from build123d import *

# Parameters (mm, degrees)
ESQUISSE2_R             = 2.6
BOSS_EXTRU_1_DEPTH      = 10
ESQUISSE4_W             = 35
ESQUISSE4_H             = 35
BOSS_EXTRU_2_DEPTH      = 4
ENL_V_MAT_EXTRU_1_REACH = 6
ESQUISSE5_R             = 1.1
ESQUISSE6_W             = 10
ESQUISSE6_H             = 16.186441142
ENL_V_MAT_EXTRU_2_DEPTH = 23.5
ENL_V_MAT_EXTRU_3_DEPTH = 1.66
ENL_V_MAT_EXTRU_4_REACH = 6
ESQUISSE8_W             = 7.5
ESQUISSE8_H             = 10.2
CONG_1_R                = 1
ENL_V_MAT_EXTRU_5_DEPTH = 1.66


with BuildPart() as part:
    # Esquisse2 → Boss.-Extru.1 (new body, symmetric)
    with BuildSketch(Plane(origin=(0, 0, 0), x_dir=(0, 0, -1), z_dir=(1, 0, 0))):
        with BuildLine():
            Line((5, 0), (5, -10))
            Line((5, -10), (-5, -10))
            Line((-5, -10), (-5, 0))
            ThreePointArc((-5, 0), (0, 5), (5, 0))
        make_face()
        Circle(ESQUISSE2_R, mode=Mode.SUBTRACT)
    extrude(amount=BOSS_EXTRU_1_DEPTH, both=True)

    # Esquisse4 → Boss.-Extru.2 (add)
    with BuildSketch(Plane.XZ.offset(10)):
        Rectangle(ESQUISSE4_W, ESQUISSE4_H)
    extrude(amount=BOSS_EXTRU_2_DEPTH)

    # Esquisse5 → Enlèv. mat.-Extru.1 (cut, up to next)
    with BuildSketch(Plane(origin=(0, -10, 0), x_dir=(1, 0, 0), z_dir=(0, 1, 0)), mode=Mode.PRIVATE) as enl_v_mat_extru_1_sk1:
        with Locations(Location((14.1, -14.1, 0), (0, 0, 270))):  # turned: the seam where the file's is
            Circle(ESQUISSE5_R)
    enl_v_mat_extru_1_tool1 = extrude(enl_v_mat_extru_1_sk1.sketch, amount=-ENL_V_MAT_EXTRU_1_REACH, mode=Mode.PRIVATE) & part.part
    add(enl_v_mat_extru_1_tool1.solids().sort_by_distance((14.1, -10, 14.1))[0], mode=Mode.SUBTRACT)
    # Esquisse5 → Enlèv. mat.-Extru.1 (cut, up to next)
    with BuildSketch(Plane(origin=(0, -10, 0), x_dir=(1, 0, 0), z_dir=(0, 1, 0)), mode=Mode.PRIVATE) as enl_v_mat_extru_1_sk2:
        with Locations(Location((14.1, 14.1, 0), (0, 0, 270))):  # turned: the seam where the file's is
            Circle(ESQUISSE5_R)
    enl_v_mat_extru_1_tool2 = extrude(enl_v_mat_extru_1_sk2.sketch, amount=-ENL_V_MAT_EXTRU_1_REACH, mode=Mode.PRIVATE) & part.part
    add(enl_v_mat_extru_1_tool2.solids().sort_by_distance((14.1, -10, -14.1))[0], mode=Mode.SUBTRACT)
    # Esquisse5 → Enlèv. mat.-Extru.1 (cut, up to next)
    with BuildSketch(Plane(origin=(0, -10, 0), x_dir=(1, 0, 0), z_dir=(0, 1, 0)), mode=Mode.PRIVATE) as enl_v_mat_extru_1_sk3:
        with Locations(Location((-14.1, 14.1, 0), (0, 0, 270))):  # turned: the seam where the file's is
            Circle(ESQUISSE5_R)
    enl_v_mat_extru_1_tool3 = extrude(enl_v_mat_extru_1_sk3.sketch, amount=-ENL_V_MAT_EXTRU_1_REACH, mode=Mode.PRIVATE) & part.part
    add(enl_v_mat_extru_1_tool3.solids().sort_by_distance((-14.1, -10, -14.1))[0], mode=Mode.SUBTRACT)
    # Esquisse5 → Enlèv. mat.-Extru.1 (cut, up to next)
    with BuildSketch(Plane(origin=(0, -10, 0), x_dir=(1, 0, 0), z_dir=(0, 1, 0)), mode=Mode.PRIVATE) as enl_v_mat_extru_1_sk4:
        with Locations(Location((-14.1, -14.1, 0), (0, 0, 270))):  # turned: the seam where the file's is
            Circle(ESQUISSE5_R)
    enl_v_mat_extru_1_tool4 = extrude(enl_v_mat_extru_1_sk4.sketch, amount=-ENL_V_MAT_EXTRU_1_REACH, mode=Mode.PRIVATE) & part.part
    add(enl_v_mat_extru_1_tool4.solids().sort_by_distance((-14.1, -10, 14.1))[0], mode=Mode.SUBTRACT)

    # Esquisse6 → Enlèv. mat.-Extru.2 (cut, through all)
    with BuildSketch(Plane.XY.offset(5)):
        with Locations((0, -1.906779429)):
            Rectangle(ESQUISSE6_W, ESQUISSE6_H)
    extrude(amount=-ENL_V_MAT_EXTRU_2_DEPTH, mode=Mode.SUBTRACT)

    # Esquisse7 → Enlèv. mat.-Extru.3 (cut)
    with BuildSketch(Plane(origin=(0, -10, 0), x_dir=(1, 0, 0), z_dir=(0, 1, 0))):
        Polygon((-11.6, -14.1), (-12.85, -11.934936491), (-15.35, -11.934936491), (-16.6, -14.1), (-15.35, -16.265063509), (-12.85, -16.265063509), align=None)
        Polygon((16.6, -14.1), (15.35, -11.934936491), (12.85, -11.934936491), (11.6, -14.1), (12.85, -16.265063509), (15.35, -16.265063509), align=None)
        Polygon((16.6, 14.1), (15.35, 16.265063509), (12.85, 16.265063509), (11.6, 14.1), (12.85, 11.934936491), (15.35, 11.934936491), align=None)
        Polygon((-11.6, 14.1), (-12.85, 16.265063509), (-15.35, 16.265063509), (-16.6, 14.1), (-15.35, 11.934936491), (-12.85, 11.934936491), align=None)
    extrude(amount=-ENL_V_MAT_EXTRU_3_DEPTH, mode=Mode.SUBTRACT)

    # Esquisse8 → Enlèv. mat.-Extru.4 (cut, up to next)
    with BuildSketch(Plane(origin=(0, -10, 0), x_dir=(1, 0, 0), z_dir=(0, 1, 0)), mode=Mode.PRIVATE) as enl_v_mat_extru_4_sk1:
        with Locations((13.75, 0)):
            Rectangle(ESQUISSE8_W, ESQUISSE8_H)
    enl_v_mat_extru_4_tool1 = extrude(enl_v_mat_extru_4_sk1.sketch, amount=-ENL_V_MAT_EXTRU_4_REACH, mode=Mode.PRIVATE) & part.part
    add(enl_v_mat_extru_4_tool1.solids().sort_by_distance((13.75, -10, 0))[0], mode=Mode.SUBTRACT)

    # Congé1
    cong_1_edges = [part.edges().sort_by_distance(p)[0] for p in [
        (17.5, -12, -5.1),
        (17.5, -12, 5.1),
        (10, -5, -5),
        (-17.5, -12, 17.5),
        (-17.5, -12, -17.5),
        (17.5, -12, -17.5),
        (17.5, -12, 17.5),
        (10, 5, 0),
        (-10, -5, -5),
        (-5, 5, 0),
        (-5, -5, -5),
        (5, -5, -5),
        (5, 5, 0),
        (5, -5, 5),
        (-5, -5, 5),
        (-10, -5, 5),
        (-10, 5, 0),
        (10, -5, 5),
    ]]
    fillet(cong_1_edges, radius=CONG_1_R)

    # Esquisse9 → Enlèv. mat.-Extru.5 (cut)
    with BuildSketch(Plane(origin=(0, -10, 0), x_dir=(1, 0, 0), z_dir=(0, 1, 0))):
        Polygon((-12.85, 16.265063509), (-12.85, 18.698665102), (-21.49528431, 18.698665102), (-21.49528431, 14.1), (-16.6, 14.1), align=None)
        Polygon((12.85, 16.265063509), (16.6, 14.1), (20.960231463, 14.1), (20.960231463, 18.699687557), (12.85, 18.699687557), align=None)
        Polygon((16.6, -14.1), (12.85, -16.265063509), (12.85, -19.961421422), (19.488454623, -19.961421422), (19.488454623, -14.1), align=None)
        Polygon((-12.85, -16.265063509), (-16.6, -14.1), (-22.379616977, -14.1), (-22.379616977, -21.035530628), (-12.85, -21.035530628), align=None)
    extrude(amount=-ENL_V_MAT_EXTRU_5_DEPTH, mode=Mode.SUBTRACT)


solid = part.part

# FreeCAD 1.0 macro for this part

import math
import FreeCAD as App
import Part
import Sketcher
from FreeCAD import Vector
Q = App.Units.Quantity


def edges_at(feature, points):
    """Names of the edges that pass closest to the given points."""
    edges = feature.Shape.Edges
    near = lambda p: min(range(len(edges)), key=lambda i: edges[i].distToShape(Part.Vertex(*p))[0])
    return sorted({f"Edge{near(p) + 1}" for p in points})

doc = App.newDocument("Part")
body = doc.addObject("PartDesign::Body", "Body")

# Sketch on YZ plane
sketch1 = doc.addObject("Sketcher::SketchObject", "Sketch")
body.addObject(sketch1)
sketch1.AttachmentSupport = (doc.YZ_Plane, [""])
sketch1.MapMode = "FlatFace"
sketch1.addGeometry([
    Part.LineSegment(Vector(-10, -5, 0), Vector(0, -5, 0)),  # 0
    Part.ArcOfCircle(Part.Circle(Vector(0, 0, 0), Vector(0, 0, 1), 5), math.radians(-90), math.radians(90)),  # 1
    Part.LineSegment(Vector(0, 5, 0), Vector(-10, 5, 0)),  # 2
    Part.LineSegment(Vector(-10, 5, 0), Vector(-10, -5, 0)),  # 3
    Part.Circle(Vector(0, 0, 0), Vector(0, 0, 1), 2.6),  # 4
], False)
sketch1.addConstraint([
    Sketcher.Constraint("Tangent", 0, 2, 1, 1),
    Sketcher.Constraint("Tangent", 1, 2, 2, 1),
    Sketcher.Constraint("Coincident", 2, 2, 3, 1),
    Sketcher.Constraint("Coincident", 3, 2, 0, 1),
    Sketcher.Constraint("Horizontal", 0),
    Sketcher.Constraint("Horizontal", 2),
    Sketcher.Constraint("Vertical", 3),
    Sketcher.Constraint("Coincident", 1, 3, -1, 1),
    Sketcher.Constraint("Coincident", 4, 3, -1, 1),
    Sketcher.Constraint("Equal", 2, 3),
    Sketcher.Constraint("Radius", 1, Q("5 mm")),
    Sketcher.Constraint("Diameter", 4, Q("5.2 mm")),
])
pad1 = doc.addObject("PartDesign::Pad", "Pad")
body.addObject(pad1)
pad1.Profile = sketch1
pad1.Length = 20
pad1.Midplane = True

# Sketch on XZ plane
sketch2 = doc.addObject("Sketcher::SketchObject", "Sketch001")
body.addObject(sketch2)
sketch2.AttachmentSupport = (doc.XZ_Plane, [""])
sketch2.MapMode = "FlatFace"
sketch2.AttachmentOffset = App.Placement(Vector(0, 0, 10), App.Rotation())
sketch2.addGeometry([
    Part.LineSegment(Vector(-17.5, 17.5, 0), Vector(-17.5, -17.5, 0)),
    Part.LineSegment(Vector(-17.5, -17.5, 0), Vector(17.5, -17.5, 0)),
    Part.LineSegment(Vector(17.5, -17.5, 0), Vector(17.5, 17.5, 0)),
    Part.LineSegment(Vector(17.5, 17.5, 0), Vector(-17.5, 17.5, 0)),
], False)
sketch2.addConstraint([
    Sketcher.Constraint("Coincident", 0, 2, 1, 1),
    Sketcher.Constraint("Coincident", 1, 2, 2, 1),
    Sketcher.Constraint("Coincident", 2, 2, 3, 1),
    Sketcher.Constraint("Coincident", 3, 2, 0, 1),
    Sketcher.Constraint("Vertical", 0),
    Sketcher.Constraint("Horizontal", 1),
    Sketcher.Constraint("Vertical", 2),
    Sketcher.Constraint("Horizontal", 3),
    Sketcher.Constraint("Symmetric", 0, 2, 2, 2, -1, 1),
    Sketcher.Constraint("Equal", 3, 0),
    Sketcher.Constraint("DistanceX", 1, 1, 1, 2, Q("35 mm")),
])
pad2 = doc.addObject("PartDesign::Pad", "Pad001")
body.addObject(pad2)
pad2.Profile = sketch2
pad2.Length = 4

# Sketch on XZ plane
sketch3 = doc.addObject("Sketcher::SketchObject", "Sketch002")
body.addObject(sketch3)
sketch3.AttachmentSupport = (doc.XZ_Plane, [""])
sketch3.MapMode = "FlatFace"
sketch3.AttachmentOffset = App.Placement(Vector(0, 0, 10), App.Rotation())
sketch3.addGeometry(Part.Circle(Vector(14.1, 14.1, 0), Vector(0, 0, 1), 1.1), False)
sketch3.addConstraint([
    Sketcher.Constraint("Diameter", 0, Q("2.2 mm")),
    Sketcher.Constraint("DistanceX", -1, 1, 0, 3, Q("14.1 mm")),
    Sketcher.Constraint("DistanceY", -1, 1, 0, 3, Q("14.1 mm")),
])
pocket1 = doc.addObject("PartDesign::Pocket", "Pocket")
body.addObject(pocket1)
pocket1.Profile = sketch3
pocket1.Type = "UpToFirst"
pocket1.Reversed = True

# Sketch on XZ plane
sketch4 = doc.addObject("Sketcher::SketchObject", "Sketch003")
body.addObject(sketch4)
sketch4.AttachmentSupport = (doc.XZ_Plane, [""])
sketch4.MapMode = "FlatFace"
sketch4.AttachmentOffset = App.Placement(Vector(0, 0, 10), App.Rotation())
sketch4.addGeometry(Part.Circle(Vector(14.1, -14.1, 0), Vector(0, 0, 1), 1.1), False)
sketch4.addConstraint([
    Sketcher.Constraint("Diameter", 0, Q("2.2 mm")),
    Sketcher.Constraint("DistanceX", -1, 1, 0, 3, Q("14.1 mm")),
    Sketcher.Constraint("DistanceY", 0, 3, -1, 1, Q("14.1 mm")),
])
pocket2 = doc.addObject("PartDesign::Pocket", "Pocket001")
body.addObject(pocket2)
pocket2.Profile = sketch4
pocket2.Type = "UpToFirst"
pocket2.Reversed = True

# Sketch on XZ plane
sketch5 = doc.addObject("Sketcher::SketchObject", "Sketch004")
body.addObject(sketch5)
sketch5.AttachmentSupport = (doc.XZ_Plane, [""])
sketch5.MapMode = "FlatFace"
sketch5.AttachmentOffset = App.Placement(Vector(0, 0, 10), App.Rotation())
sketch5.addGeometry(Part.Circle(Vector(-14.1, -14.1, 0), Vector(0, 0, 1), 1.1), False)
sketch5.addConstraint([
    Sketcher.Constraint("Diameter", 0, Q("2.2 mm")),
    Sketcher.Constraint("DistanceX", 0, 3, -1, 1, Q("14.1 mm")),
    Sketcher.Constraint("DistanceY", 0, 3, -1, 1, Q("14.1 mm")),
])
pocket3 = doc.addObject("PartDesign::Pocket", "Pocket002")
body.addObject(pocket3)
pocket3.Profile = sketch5
pocket3.Type = "UpToFirst"
pocket3.Reversed = True

# Sketch on XZ plane
sketch6 = doc.addObject("Sketcher::SketchObject", "Sketch005")
body.addObject(sketch6)
sketch6.AttachmentSupport = (doc.XZ_Plane, [""])
sketch6.MapMode = "FlatFace"
sketch6.AttachmentOffset = App.Placement(Vector(0, 0, 10), App.Rotation())
sketch6.addGeometry(Part.Circle(Vector(-14.1, 14.1, 0), Vector(0, 0, 1), 1.1), False)
sketch6.addConstraint([
    Sketcher.Constraint("Diameter", 0, Q("2.2 mm")),
    Sketcher.Constraint("DistanceX", 0, 3, -1, 1, Q("14.1 mm")),
    Sketcher.Constraint("DistanceY", -1, 1, 0, 3, Q("14.1 mm")),
])
pocket4 = doc.addObject("PartDesign::Pocket", "Pocket003")
body.addObject(pocket4)
pocket4.Profile = sketch6
pocket4.Type = "UpToFirst"
pocket4.Reversed = True

# Sketch on XY plane
sketch7 = doc.addObject("Sketcher::SketchObject", "Sketch006")
body.addObject(sketch7)
sketch7.AttachmentSupport = (doc.XY_Plane, [""])
sketch7.MapMode = "FlatFace"
sketch7.AttachmentOffset = App.Placement(Vector(0, 0, 5), App.Rotation())
sketch7.addGeometry([
    Part.LineSegment(Vector(-5, 6.186441, 0), Vector(-5, -10, 0)),
    Part.LineSegment(Vector(-5, -10, 0), Vector(5, -10, 0)),
    Part.LineSegment(Vector(5, -10, 0), Vector(5, 6.186441, 0)),
    Part.LineSegment(Vector(5, 6.186441, 0), Vector(-5, 6.186441, 0)),
], False)
sketch7.addConstraint([
    Sketcher.Constraint("Coincident", 0, 2, 1, 1),
    Sketcher.Constraint("Coincident", 1, 2, 2, 1),
    Sketcher.Constraint("Coincident", 2, 2, 3, 1),
    Sketcher.Constraint("Coincident", 3, 2, 0, 1),
    Sketcher.Constraint("Vertical", 0),
    Sketcher.Constraint("Horizontal", 1),
    Sketcher.Constraint("Vertical", 2),
    Sketcher.Constraint("Horizontal", 3),
    Sketcher.Constraint("DistanceX", 1, 1, 1, 2, Q("10 mm")),
    Sketcher.Constraint("DistanceX", 0, 2, -1, 1, Q("5 mm")),
    Sketcher.Constraint("DistanceY", 0, 2, -1, 1, Q("10 mm")),
    Sketcher.Constraint("DistanceY", 0, 2, 0, 1, Q("16.186441 mm")),
])
pocket5 = doc.addObject("PartDesign::Pocket", "Pocket004")
body.addObject(pocket5)
pocket5.Profile = sketch7
pocket5.Type = "ThroughAll"

# Sketch on XZ plane
sketch8 = doc.addObject("Sketcher::SketchObject", "Sketch007")
body.addObject(sketch8)
sketch8.AttachmentSupport = (doc.XZ_Plane, [""])
sketch8.MapMode = "FlatFace"
sketch8.AttachmentOffset = App.Placement(Vector(0, 0, 10), App.Rotation())
sketch8.addGeometry([
    Part.LineSegment(Vector(-11.6, 14.1, 0), Vector(-12.85, 11.934936, 0)),  # 0
    Part.LineSegment(Vector(-12.85, 11.934936, 0), Vector(-15.35, 11.934936, 0)),  # 1
    Part.LineSegment(Vector(-15.35, 11.934936, 0), Vector(-16.6, 14.1, 0)),  # 2
    Part.LineSegment(Vector(-16.6, 14.1, 0), Vector(-15.35, 16.265064, 0)),  # 3
    Part.LineSegment(Vector(-15.35, 16.265064, 0), Vector(-12.85, 16.265064, 0)),  # 4
    Part.LineSegment(Vector(-12.85, 16.265064, 0), Vector(-11.6, 14.1, 0)),  # 5
    Part.LineSegment(Vector(16.6, 14.1, 0), Vector(15.35, 11.934936, 0)),  # 6
    Part.LineSegment(Vector(15.35, 11.934936, 0), Vector(12.85, 11.934936, 0)),  # 7
    Part.LineSegment(Vector(12.85, 11.934936, 0), Vector(11.6, 14.1, 0)),  # 8
    Part.LineSegment(Vector(11.6, 14.1, 0), Vector(12.85, 16.265064, 0)),  # 9
    Part.LineSegment(Vector(12.85, 16.265064, 0), Vector(15.35, 16.265064, 0)),  # 10
    Part.LineSegment(Vector(15.35, 16.265064, 0), Vector(16.6, 14.1, 0)),  # 11
    Part.LineSegment(Vector(16.6, -14.1, 0), Vector(15.35, -16.265064, 0)),  # 12
    Part.LineSegment(Vector(15.35, -16.265064, 0), Vector(12.85, -16.265064, 0)),  # 13
    Part.LineSegment(Vector(12.85, -16.265064, 0), Vector(11.6, -14.1, 0)),  # 14
    Part.LineSegment(Vector(11.6, -14.1, 0), Vector(12.85, -11.934936, 0)),  # 15
    Part.LineSegment(Vector(12.85, -11.934936, 0), Vector(15.35, -11.934936, 0)),  # 16
    Part.LineSegment(Vector(15.35, -11.934936, 0), Vector(16.6, -14.1, 0)),  # 17
    Part.LineSegment(Vector(-11.6, -14.1, 0), Vector(-12.85, -16.265064, 0)),  # 18
    Part.LineSegment(Vector(-12.85, -16.265064, 0), Vector(-15.35, -16.265064, 0)),  # 19
    Part.LineSegment(Vector(-15.35, -16.265064, 0), Vector(-16.6, -14.1, 0)),  # 20
    Part.LineSegment(Vector(-16.6, -14.1, 0), Vector(-15.35, -11.934936, 0)),  # 21
    Part.LineSegment(Vector(-15.35, -11.934936, 0), Vector(-12.85, -11.934936, 0)),  # 22
    Part.LineSegment(Vector(-12.85, -11.934936, 0), Vector(-11.6, -14.1, 0)),  # 23
], False)
sketch8.addConstraint([
    Sketcher.Constraint("Coincident", 0, 2, 1, 1),
    Sketcher.Constraint("Coincident", 1, 2, 2, 1),
    Sketcher.Constraint("Coincident", 2, 2, 3, 1),
    Sketcher.Constraint("Coincident", 3, 2, 4, 1),
    Sketcher.Constraint("Coincident", 4, 2, 5, 1),
    Sketcher.Constraint("Coincident", 5, 2, 0, 1),
    Sketcher.Constraint("Coincident", 6, 2, 7, 1),
    Sketcher.Constraint("Coincident", 7, 2, 8, 1),
    Sketcher.Constraint("Coincident", 8, 2, 9, 1),
    Sketcher.Constraint("Coincident", 9, 2, 10, 1),
    Sketcher.Constraint("Coincident", 10, 2, 11, 1),
    Sketcher.Constraint("Coincident", 11, 2, 6, 1),
    Sketcher.Constraint("Coincident", 12, 2, 13, 1),
    Sketcher.Constraint("Coincident", 13, 2, 14, 1),
    Sketcher.Constraint("Coincident", 14, 2, 15, 1),
    Sketcher.Constraint("Coincident", 15, 2, 16, 1),
    Sketcher.Constraint("Coincident", 16, 2, 17, 1),
    Sketcher.Constraint("Coincident", 17, 2, 12, 1),
    Sketcher.Constraint("Coincident", 18, 2, 19, 1),
    Sketcher.Constraint("Coincident", 19, 2, 20, 1),
    Sketcher.Constraint("Coincident", 20, 2, 21, 1),
    Sketcher.Constraint("Coincident", 21, 2, 22, 1),
    Sketcher.Constraint("Coincident", 22, 2, 23, 1),
    Sketcher.Constraint("Coincident", 23, 2, 18, 1),
    Sketcher.Constraint("Horizontal", 1),
    Sketcher.Constraint("Horizontal", 4),
    Sketcher.Constraint("Horizontal", 7),
    Sketcher.Constraint("Horizontal", 10),
    Sketcher.Constraint("Horizontal", 13),
    Sketcher.Constraint("Horizontal", 16),
    Sketcher.Constraint("Horizontal", 19),
    Sketcher.Constraint("Horizontal", 22),
    Sketcher.Constraint("Symmetric", 3, 2, 12, 2, -1, 1),
    Sketcher.Constraint("Symmetric", 5, 2, 14, 2, -1, 1),
    Sketcher.Constraint("Symmetric", 0, 2, 15, 2, -1, 1),
    Sketcher.Constraint("Symmetric", 2, 2, 17, 2, -1, 1),
    Sketcher.Constraint("Symmetric", 9, 2, 18, 2, -1, 1),
    Sketcher.Constraint("Symmetric", 11, 2, 20, 2, -1, 1),
    Sketcher.Constraint("Symmetric", 6, 2, 21, 2, -1, 1),
    Sketcher.Constraint("Symmetric", 8, 2, 23, 2, -1, 1),
    Sketcher.Constraint("Symmetric", 1, 2, 6, 2, -2),
    Sketcher.Constraint("Symmetric", 5, 2, 8, 2, -2),
    Sketcher.Constraint("Symmetric", 4, 2, 9, 2, -2),
    Sketcher.Constraint("Symmetric", 2, 2, 11, 2, -2),
    Sketcher.Constraint("Parallel", 0, 3),
    Sketcher.Constraint("Parallel", 2, 5),
    Sketcher.Constraint("Parallel", 3, 6),
    Sketcher.Constraint("Parallel", 5, 8),
    Sketcher.Constraint("Parallel", 8, 11),
    Sketcher.Constraint("Parallel", 11, 14),
    Sketcher.Constraint("Parallel", 14, 17),
    Sketcher.Constraint("Parallel", 17, 20),
    Sketcher.Constraint("Parallel", 20, 23),
    Sketcher.Constraint("Horizontal", 2, 2, 5, 2),
    Sketcher.Constraint("Vertical", 1, 2, 3, 2),
    Sketcher.Constraint("Angle", 0, Q("-120 deg")),
    Sketcher.Constraint("DistanceX", 1, 2, 1, 1, Q("2.5 mm")),
    Sketcher.Constraint("DistanceX", 2, 2, 5, 2, Q("5 mm")),
    Sketcher.Constraint("DistanceX", 2, 2, -1, 1, Q("16.6 mm")),
    Sketcher.Constraint("DistanceY", -1, 1, 2, 2, Q("14.1 mm")),
])
pocket6 = doc.addObject("PartDesign::Pocket", "Pocket005")
body.addObject(pocket6)
pocket6.Profile = sketch8
pocket6.Length = 1.66
pocket6.Reversed = True

# Sketch on XZ plane
sketch9 = doc.addObject("Sketcher::SketchObject", "Sketch008")
body.addObject(sketch9)
sketch9.AttachmentSupport = (doc.XZ_Plane, [""])
sketch9.MapMode = "FlatFace"
sketch9.AttachmentOffset = App.Placement(Vector(0, 0, 10), App.Rotation())
sketch9.addGeometry([
    Part.LineSegment(Vector(10, -5.1, 0), Vector(10, 5.1, 0)),
    Part.LineSegment(Vector(10, 5.1, 0), Vector(17.5, 5.1, 0)),
    Part.LineSegment(Vector(17.5, 5.1, 0), Vector(17.5, -5.1, 0)),
    Part.LineSegment(Vector(17.5, -5.1, 0), Vector(10, -5.1, 0)),
], False)
sketch9.addConstraint([
    Sketcher.Constraint("Coincident", 0, 2, 1, 1),
    Sketcher.Constraint("Coincident", 1, 2, 2, 1),
    Sketcher.Constraint("Coincident", 2, 2, 3, 1),
    Sketcher.Constraint("Coincident", 3, 2, 0, 1),
    Sketcher.Constraint("Vertical", 0),
    Sketcher.Constraint("Horizontal", 1),
    Sketcher.Constraint("Vertical", 2),
    Sketcher.Constraint("Horizontal", 3),
    Sketcher.Constraint("DistanceX", 1, 1, 1, 2, Q("7.5 mm")),
    Sketcher.Constraint("DistanceY", 0, 1, 0, 2, Q("10.2 mm")),
    Sketcher.Constraint("DistanceX", -1, 1, 0, 2, Q("10 mm")),
    Sketcher.Constraint("DistanceY", -1, 1, 0, 2, Q("5.1 mm")),
])
pocket7 = doc.addObject("PartDesign::Pocket", "Pocket006")
body.addObject(pocket7)
pocket7.Profile = sketch9
pocket7.Type = "UpToFirst"
pocket7.Reversed = True
doc.recompute()

fillet = doc.addObject("PartDesign::Fillet", "Fillet")
body.addObject(fillet)
fillet.Base = (pocket7, edges_at(pocket7, [
    (17.5, -12, -5.1),
    (17.5, -12, 5.1),
    (10, -5, -5),
    (-17.5, -12, 17.5),
    (-17.5, -12, -17.5),
    (17.5, -12, -17.5),
    (17.5, -12, 17.5),
    (10, 5, 0),
    (-10, -5, -5),
    (-5, 5, 0),
    (-5, -5, -5),
    (5, -5, -5),
    (5, 5, 0),
    (5, -5, 5),
    (-5, -5, 5),
    (-10, -5, 5),
    (-10, 5, 0),
    (10, -5, 5),
]))
fillet.Radius = 1

# Sketch on XZ plane
sketch10 = doc.addObject("Sketcher::SketchObject", "Sketch009")
body.addObject(sketch10)
sketch10.AttachmentSupport = (doc.XZ_Plane, [""])
sketch10.MapMode = "FlatFace"
sketch10.AttachmentOffset = App.Placement(Vector(0, 0, 10), App.Rotation())
sketch10.addGeometry([
    Part.LineSegment(Vector(-12.85, -16.265064, 0), Vector(-12.85, -18.698665, 0)),  # 0
    Part.LineSegment(Vector(-12.85, -18.698665, 0), Vector(-21.495284, -18.698665, 0)),  # 1
    Part.LineSegment(Vector(-21.495284, -18.698665, 0), Vector(-21.495284, -14.1, 0)),  # 2
    Part.LineSegment(Vector(-21.495284, -14.1, 0), Vector(-16.6, -14.1, 0)),  # 3
    Part.LineSegment(Vector(-16.6, -14.1, 0), Vector(-12.85, -16.265064, 0)),  # 4
    Part.LineSegment(Vector(12.85, -16.265064, 0), Vector(16.6, -14.1, 0)),  # 5
    Part.LineSegment(Vector(16.6, -14.1, 0), Vector(20.960231, -14.1, 0)),  # 6
    Part.LineSegment(Vector(20.960231, -14.1, 0), Vector(20.960231, -18.699688, 0)),  # 7
    Part.LineSegment(Vector(20.960231, -18.699688, 0), Vector(12.85, -18.699688, 0)),  # 8
    Part.LineSegment(Vector(12.85, -18.699688, 0), Vector(12.85, -16.265064, 0)),  # 9
    Part.LineSegment(Vector(16.6, 14.1, 0), Vector(12.85, 16.265064, 0)),  # 10
    Part.LineSegment(Vector(12.85, 16.265064, 0), Vector(12.85, 19.961421, 0)),  # 11
    Part.LineSegment(Vector(12.85, 19.961421, 0), Vector(19.488455, 19.961421, 0)),  # 12
    Part.LineSegment(Vector(19.488455, 19.961421, 0), Vector(19.488455, 14.1, 0)),  # 13
    Part.LineSegment(Vector(19.488455, 14.1, 0), Vector(16.6, 14.1, 0)),  # 14
    Part.LineSegment(Vector(-12.85, 16.265064, 0), Vector(-16.6, 14.1, 0)),  # 15
    Part.LineSegment(Vector(-16.6, 14.1, 0), Vector(-22.379617, 14.1, 0)),  # 16
    Part.LineSegment(Vector(-22.379617, 14.1, 0), Vector(-22.379617, 21.035531, 0)),  # 17
    Part.LineSegment(Vector(-22.379617, 21.035531, 0), Vector(-12.85, 21.035531, 0)),  # 18
    Part.LineSegment(Vector(-12.85, 21.035531, 0), Vector(-12.85, 16.265064, 0)),  # 19
], False)
sketch10.addConstraint([
    Sketcher.Constraint("Coincident", 0, 2, 1, 1),
    Sketcher.Constraint("Coincident", 1, 2, 2, 1),
    Sketcher.Constraint("Coincident", 2, 2, 3, 1),
    Sketcher.Constraint("Coincident", 3, 2, 4, 1),
    Sketcher.Constraint("Coincident", 4, 2, 0, 1),
    Sketcher.Constraint("Coincident", 5, 2, 6, 1),
    Sketcher.Constraint("Coincident", 6, 2, 7, 1),
    Sketcher.Constraint("Coincident", 7, 2, 8, 1),
    Sketcher.Constraint("Coincident", 8, 2, 9, 1),
    Sketcher.Constraint("Coincident", 9, 2, 5, 1),
    Sketcher.Constraint("Coincident", 10, 2, 11, 1),
    Sketcher.Constraint("Coincident", 11, 2, 12, 1),
    Sketcher.Constraint("Coincident", 12, 2, 13, 1),
    Sketcher.Constraint("Coincident", 13, 2, 14, 1),
    Sketcher.Constraint("Coincident", 14, 2, 10, 1),
    Sketcher.Constraint("Coincident", 15, 2, 16, 1),
    Sketcher.Constraint("Coincident", 16, 2, 17, 1),
    Sketcher.Constraint("Coincident", 17, 2, 18, 1),
    Sketcher.Constraint("Coincident", 18, 2, 19, 1),
    Sketcher.Constraint("Coincident", 19, 2, 15, 1),
    Sketcher.Constraint("Vertical", 0),
    Sketcher.Constraint("Horizontal", 1),
    Sketcher.Constraint("Vertical", 2),
    Sketcher.Constraint("Horizontal", 3),
    Sketcher.Constraint("Horizontal", 6),
    Sketcher.Constraint("Vertical", 7),
    Sketcher.Constraint("Horizontal", 8),
    Sketcher.Constraint("Vertical", 9),
    Sketcher.Constraint("Vertical", 11),
    Sketcher.Constraint("Horizontal", 12),
    Sketcher.Constraint("Vertical", 13),
    Sketcher.Constraint("Horizontal", 14),
    Sketcher.Constraint("Horizontal", 16),
    Sketcher.Constraint("Vertical", 17),
    Sketcher.Constraint("Horizontal", 18),
    Sketcher.Constraint("Vertical", 19),
    Sketcher.Constraint("Symmetric", 4, 2, 10, 2, -1, 1),
    Sketcher.Constraint("Symmetric", 3, 2, 14, 2, -1, 1),
    Sketcher.Constraint("Symmetric", 5, 2, 15, 2, -1, 1),
    Sketcher.Constraint("Symmetric", 9, 2, 19, 2, -1, 1),
    Sketcher.Constraint("Symmetric", 3, 2, 5, 2, -2),
    Sketcher.Constraint("Symmetric", 4, 2, 9, 2, -2),
    Sketcher.Constraint("Angle", 4, Q("-30 deg")),
    Sketcher.Constraint("DistanceY", 2, 2, -1, 1, Q("14.1 mm")),
    Sketcher.Constraint("DistanceX", 3, 2, -1, 1, Q("16.6 mm")),
    Sketcher.Constraint("DistanceX", 0, 2, 8, 2, Q("25.7 mm")),
    Sketcher.Constraint("DistanceY", 0, 2, 0, 1, Q("2.433602 mm")),
    Sketcher.Constraint("DistanceX", 6, 1, 6, 2, Q("4.360231 mm")),
    Sketcher.Constraint("DistanceY", 13, 2, 13, 1, Q("5.861421 mm")),
    Sketcher.Constraint("DistanceY", 17, 1, 17, 2, Q("6.935531 mm")),
    Sketcher.Constraint("DistanceX", 1, 2, 1, 1, Q("8.645284 mm")),
    Sketcher.Constraint("DistanceX", 12, 1, 12, 2, Q("6.638455 mm")),
    Sketcher.Constraint("DistanceX", 16, 2, 16, 1, Q("5.779617 mm")),
    Sketcher.Constraint("DistanceY", 7, 2, 7, 1, Q("4.599688 mm")),
])
pocket8 = doc.addObject("PartDesign::Pocket", "Pocket007")
body.addObject(pocket8)
pocket8.Profile = sketch10
pocket8.Length = 1.66
pocket8.Reversed = True

doc.recompute()
